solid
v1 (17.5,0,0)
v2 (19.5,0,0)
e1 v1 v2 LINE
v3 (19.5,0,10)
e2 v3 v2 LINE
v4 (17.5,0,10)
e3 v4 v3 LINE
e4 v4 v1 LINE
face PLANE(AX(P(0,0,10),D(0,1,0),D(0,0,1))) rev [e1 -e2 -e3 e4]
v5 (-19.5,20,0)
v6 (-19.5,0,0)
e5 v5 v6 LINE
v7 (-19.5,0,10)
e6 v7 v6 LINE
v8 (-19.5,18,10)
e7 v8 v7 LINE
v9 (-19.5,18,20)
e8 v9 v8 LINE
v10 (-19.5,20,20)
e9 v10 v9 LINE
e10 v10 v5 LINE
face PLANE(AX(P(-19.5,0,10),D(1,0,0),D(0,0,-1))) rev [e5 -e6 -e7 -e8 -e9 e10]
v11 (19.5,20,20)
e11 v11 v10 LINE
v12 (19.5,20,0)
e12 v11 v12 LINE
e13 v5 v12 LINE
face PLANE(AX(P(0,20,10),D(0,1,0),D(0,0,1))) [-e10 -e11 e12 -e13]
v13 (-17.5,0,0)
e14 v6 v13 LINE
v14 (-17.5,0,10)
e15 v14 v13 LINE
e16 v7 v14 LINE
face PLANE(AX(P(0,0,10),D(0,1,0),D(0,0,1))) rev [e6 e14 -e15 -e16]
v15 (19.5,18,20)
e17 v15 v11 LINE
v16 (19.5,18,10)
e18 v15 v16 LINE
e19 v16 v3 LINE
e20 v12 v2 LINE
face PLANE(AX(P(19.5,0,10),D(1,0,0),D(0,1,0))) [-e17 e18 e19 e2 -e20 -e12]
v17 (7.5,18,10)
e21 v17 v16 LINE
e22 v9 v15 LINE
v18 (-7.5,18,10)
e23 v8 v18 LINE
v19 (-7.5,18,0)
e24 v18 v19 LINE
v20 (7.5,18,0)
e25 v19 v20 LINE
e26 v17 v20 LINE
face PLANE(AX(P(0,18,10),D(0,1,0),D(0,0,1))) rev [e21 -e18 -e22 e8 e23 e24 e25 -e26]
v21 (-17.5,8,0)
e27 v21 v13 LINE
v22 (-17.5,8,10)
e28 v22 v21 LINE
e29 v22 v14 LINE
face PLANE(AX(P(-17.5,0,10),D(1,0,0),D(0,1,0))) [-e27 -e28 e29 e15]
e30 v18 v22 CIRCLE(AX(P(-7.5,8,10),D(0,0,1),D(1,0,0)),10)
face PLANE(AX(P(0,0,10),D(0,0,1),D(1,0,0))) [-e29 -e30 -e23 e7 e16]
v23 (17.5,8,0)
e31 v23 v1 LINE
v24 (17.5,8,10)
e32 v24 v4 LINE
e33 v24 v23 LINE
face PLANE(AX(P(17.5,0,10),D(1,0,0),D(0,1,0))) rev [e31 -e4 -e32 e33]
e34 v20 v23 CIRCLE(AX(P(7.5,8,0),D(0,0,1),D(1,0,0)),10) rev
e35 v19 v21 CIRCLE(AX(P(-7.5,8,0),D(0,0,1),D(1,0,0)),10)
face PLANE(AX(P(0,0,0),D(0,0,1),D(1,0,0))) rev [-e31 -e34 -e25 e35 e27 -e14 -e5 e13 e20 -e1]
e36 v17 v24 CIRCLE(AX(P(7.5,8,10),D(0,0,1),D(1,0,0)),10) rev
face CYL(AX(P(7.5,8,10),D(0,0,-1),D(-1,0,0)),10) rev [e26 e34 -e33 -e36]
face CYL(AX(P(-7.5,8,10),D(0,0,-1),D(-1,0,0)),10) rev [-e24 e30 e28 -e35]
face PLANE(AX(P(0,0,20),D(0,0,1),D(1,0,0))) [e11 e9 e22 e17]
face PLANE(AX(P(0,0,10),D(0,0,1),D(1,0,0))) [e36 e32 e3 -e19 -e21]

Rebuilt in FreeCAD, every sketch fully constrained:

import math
import FreeCAD as App
import Part
import Sketcher
from FreeCAD import Vector

doc = App.newDocument("Part")
body = doc.addObject("PartDesign::Body", "Body")

# Sketch on XY plane
sketch1 = body.newObject("Sketcher::SketchObject", "Sketch")
sketch1.AttachmentSupport = (doc.getObject("XY_Plane"), [""])
sketch1.MapMode = "FlatFace"
sketch1.addGeometry([
    Part.LineSegment(Vector(-19.5, 20, 0), Vector(-19.5, 0, 0)),  # 0
    Part.LineSegment(Vector(-19.5, 0, 0), Vector(-17.5, 0, 0)),  # 1
    Part.LineSegment(Vector(-17.5, 0, 0), Vector(-17.5, 8, 0)),  # 2
    Part.ArcOfCircle(Part.Circle(Vector(-7.5, 8, 0), Vector(0, 0, 1), 10), math.radians(90), math.radians(180)),  # 3
    Part.LineSegment(Vector(-7.5, 18, 0), Vector(7.5, 18, 0)),  # 4
    Part.ArcOfCircle(Part.Circle(Vector(7.5, 8, 0), Vector(0, 0, 1), 10), math.radians(0), math.radians(90)),  # 5
    Part.LineSegment(Vector(17.5, 8, 0), Vector(17.5, 0, 0)),  # 6
    Part.LineSegment(Vector(17.5, 0, 0), Vector(19.5, 0, 0)),  # 7
    Part.LineSegment(Vector(19.5, 0, 0), Vector(19.5, 20, 0)),  # 8
    Part.LineSegment(Vector(19.5, 20, 0), Vector(-19.5, 20, 0)),  # 9
], False)
sketch1.addConstraint([
    Sketcher.Constraint("Coincident", 0, 2, 1, 1),
    Sketcher.Constraint("Coincident", 1, 2, 2, 1),
    Sketcher.Constraint("Tangent", 2, 2, 3, 2),
    Sketcher.Constraint("Tangent", 3, 1, 4, 1),
    Sketcher.Constraint("Tangent", 4, 2, 5, 2),
    Sketcher.Constraint("Tangent", 5, 1, 6, 1),
    Sketcher.Constraint("Coincident", 6, 2, 7, 1),
    Sketcher.Constraint("Coincident", 7, 2, 8, 1),
    Sketcher.Constraint("Coincident", 8, 2, 9, 1),
    Sketcher.Constraint("Coincident", 9, 2, 0, 1),
    Sketcher.Constraint("Vertical", 0),
    Sketcher.Constraint("Horizontal", 1),
    Sketcher.Constraint("Vertical", 2),
    Sketcher.Constraint("Horizontal", 4),
    Sketcher.Constraint("Vertical", 6),
    Sketcher.Constraint("Horizontal", 7),
    Sketcher.Constraint("Vertical", 8),
    Sketcher.Constraint("Horizontal", 9),
    Sketcher.Constraint("Equal", 3, 5),
    Sketcher.Constraint("Symmetric", 1, 2, 6, 2, -1, 1),
    Sketcher.Constraint("Symmetric", 0, 2, 7, 2, -2),
    Sketcher.Constraint("Radius", 3, 10.0),
    Sketcher.Constraint("DistanceX", 1, 1, 1, 2, 2.0),
    Sketcher.Constraint("DistanceX", 4, 1, 4, 2, 15.0),
    Sketcher.Constraint("DistanceY", 0, 2, 0, 1, 20.0),
    Sketcher.Constraint("DistanceY", 2, 1, 2, 2, 8.0),
])
pad1 = body.newObject("PartDesign::Pad", "Pad")
pad1.Profile = sketch1
pad1.Length = 10

# Sketch on XY plane
sketch2 = body.newObject("Sketcher::SketchObject", "Sketch001")
sketch2.AttachmentSupport = (doc.getObject("XY_Plane"), [""])
sketch2.MapMode = "FlatFace"
sketch2.AttachmentOffset = App.Placement(Vector(0, 0, 10), App.Rotation())
sketch2.addGeometry([
    Part.LineSegment(Vector(-19.5, 20, 0), Vector(-19.5, 18, 0)),
    Part.LineSegment(Vector(-19.5, 18, 0), Vector(19.5, 18, 0)),
    Part.LineSegment(Vector(19.5, 18, 0), Vector(19.5, 20, 0)),
    Part.LineSegment(Vector(19.5, 20, 0), Vector(-19.5, 20, 0)),
], False)
sketch2.addConstraint([
    Sketcher.Constraint("Coincident", 0, 2, 1, 1),
    Sketcher.Constraint("Coincident", 1, 2, 2, 1),
    Sketcher.Constraint("Coincident", 2, 2, 3, 1),
    Sketcher.Constraint("Coincident", 3, 2, 0, 1),
    Sketcher.Constraint("Vertical", 0),
    Sketcher.Constraint("Horizontal", 1),
    Sketcher.Constraint("Vertical", 2),
    Sketcher.Constraint("Horizontal", 3),
    Sketcher.Constraint("DistanceX", 1, 1, 1, 2, 39.0),
    Sketcher.Constraint("DistanceY", 0, 2, 0, 1, 2.0),
    Sketcher.Constraint("DistanceY", -1, 1, 0, 2, 18.0),
    Sketcher.Constraint("DistanceX", 0, 2, -1, 1, 19.5),
])
pad2 = body.newObject("PartDesign::Pad", "Pad001")
pad2.Profile = sketch2
pad2.Length = 10

doc.recompute()
